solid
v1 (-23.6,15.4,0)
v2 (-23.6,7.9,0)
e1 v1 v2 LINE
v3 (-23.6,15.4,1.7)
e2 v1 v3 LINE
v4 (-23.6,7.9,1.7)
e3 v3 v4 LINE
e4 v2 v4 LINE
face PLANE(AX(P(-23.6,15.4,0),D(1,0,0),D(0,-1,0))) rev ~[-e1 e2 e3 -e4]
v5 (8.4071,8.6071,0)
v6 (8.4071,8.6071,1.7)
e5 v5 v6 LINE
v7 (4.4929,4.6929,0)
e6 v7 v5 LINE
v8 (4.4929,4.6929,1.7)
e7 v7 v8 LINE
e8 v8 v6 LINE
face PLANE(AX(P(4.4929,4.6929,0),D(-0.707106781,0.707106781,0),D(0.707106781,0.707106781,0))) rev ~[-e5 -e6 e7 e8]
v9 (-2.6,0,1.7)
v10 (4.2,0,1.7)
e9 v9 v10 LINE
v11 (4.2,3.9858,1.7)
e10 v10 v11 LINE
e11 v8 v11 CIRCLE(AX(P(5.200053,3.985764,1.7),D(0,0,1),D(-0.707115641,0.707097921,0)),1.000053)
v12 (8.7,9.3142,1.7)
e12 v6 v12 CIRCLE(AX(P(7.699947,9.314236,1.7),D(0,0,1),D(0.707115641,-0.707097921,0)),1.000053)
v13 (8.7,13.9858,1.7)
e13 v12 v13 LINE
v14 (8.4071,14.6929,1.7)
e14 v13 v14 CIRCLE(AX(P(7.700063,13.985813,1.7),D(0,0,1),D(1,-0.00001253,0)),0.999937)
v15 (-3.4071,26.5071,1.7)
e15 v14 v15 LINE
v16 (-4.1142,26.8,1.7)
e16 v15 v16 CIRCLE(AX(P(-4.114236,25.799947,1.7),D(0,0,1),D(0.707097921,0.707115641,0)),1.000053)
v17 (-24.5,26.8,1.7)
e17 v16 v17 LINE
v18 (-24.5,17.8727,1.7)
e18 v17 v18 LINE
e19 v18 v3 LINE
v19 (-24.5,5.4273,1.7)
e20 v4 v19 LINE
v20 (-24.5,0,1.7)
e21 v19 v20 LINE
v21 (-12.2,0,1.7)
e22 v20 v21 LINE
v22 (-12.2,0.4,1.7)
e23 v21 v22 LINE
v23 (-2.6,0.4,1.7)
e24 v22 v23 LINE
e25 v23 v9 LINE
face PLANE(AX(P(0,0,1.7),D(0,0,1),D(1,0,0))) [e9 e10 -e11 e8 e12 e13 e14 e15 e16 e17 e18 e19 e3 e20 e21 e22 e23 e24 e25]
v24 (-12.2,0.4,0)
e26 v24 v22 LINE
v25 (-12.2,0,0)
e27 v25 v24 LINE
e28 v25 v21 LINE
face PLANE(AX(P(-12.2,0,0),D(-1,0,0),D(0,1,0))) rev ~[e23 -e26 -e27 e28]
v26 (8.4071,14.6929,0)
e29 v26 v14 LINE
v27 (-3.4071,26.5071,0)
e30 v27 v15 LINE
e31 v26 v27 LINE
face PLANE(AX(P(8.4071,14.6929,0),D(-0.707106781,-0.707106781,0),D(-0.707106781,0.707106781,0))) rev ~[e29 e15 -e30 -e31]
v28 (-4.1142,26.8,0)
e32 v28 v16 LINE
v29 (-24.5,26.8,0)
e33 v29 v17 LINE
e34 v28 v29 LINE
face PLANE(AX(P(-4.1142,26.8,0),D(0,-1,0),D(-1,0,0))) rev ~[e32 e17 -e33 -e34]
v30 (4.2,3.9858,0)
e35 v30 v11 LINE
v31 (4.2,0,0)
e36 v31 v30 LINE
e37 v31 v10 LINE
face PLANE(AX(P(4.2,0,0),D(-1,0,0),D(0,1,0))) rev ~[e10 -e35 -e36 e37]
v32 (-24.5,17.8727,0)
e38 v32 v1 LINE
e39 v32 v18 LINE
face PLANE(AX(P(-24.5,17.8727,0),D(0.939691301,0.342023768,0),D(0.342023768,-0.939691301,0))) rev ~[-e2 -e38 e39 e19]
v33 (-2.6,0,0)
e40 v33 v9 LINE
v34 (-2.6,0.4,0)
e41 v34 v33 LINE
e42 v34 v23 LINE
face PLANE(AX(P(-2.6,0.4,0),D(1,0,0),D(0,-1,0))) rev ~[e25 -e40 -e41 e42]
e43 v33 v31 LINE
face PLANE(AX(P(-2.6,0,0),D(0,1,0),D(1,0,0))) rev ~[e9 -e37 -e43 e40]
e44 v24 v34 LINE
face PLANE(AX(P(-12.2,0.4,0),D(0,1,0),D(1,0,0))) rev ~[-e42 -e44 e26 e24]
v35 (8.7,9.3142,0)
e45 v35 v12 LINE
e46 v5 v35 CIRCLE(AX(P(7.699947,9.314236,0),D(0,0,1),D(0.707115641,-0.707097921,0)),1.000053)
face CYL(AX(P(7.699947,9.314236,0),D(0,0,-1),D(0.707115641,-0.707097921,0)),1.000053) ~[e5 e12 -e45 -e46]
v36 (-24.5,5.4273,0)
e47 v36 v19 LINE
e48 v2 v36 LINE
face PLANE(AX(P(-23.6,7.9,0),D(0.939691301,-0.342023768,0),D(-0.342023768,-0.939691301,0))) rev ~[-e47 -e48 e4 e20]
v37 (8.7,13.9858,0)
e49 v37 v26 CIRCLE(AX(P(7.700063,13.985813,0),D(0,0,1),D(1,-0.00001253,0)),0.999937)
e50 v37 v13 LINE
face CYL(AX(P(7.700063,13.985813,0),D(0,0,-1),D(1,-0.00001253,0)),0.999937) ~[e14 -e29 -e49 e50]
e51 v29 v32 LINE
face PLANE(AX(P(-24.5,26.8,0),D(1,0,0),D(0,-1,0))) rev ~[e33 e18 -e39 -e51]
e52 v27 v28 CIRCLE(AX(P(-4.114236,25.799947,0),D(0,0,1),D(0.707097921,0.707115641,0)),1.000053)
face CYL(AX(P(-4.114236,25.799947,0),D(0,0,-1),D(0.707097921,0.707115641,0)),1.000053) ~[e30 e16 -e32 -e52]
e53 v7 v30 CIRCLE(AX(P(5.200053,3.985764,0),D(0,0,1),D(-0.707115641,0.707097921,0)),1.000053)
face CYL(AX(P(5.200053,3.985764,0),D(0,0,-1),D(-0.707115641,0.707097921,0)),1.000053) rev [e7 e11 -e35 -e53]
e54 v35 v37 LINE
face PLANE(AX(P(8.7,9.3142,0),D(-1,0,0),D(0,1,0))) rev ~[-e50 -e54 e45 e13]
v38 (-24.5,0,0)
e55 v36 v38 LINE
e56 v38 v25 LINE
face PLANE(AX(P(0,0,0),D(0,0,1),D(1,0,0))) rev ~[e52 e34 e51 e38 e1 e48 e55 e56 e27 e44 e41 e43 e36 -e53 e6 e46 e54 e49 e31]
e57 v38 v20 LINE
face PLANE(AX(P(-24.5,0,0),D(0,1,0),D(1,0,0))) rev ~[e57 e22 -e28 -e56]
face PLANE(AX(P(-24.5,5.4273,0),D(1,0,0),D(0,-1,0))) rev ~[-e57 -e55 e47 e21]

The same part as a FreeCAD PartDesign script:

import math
import FreeCAD as App
import Part
import Sketcher
from FreeCAD import Vector
Q = App.Units.Quantity

doc = App.newDocument("Part")
body = doc.addObject("PartDesign::Body", "Body")

sketch1 = body.newObject("Sketcher::SketchObject", "Sketch")
sketch1.AttachmentSupport = (doc.getObject("XY_Plane"), [""])
sketch1.MapMode = "FlatFace"
sketch1.addGeometry(Part.LineSegment(Vector(-24.5, 5.43, 0), Vector(-24.5, 0, 0)), False)
sketch1.addGeometry(Part.LineSegment(Vector(-24.5, 0, 0), Vector(-12.2, 0, 0)), False)
sketch1.addGeometry(Part.LineSegment(Vector(-12.2, 0, 0), Vector(-12.2, 0.4, 0)), False)
sketch1.addGeometry(Part.LineSegment(Vector(-12.2, 0.4, 0), Vector(-2.6, 0.4, 0)), False)
sketch1.addGeometry(Part.LineSegment(Vector(-2.6, 0.4, 0), Vector(-2.6, 0, 0)), False)
sketch1.addGeometry(Part.LineSegment(Vector(-2.6, 0, 0), Vector(4.2, 0, 0)), False)
sketch1.addGeometry(Part.LineSegment(Vector(4.2, 0, 0), Vector(4.2, 3.99, 0)), False)
sketch1.addGeometry(Part.ArcOfCircle(Part.Circle(Vector(5.2, 3.99, 0), Vector(0, 0, 1), 1), math.radians(135), math.radians(180)), False)
sketch1.addGeometry(Part.LineSegment(Vector(4.49, 4.69, 0), Vector(8.41, 8.61, 0)), False)
sketch1.addGeometry(Part.ArcOfCircle(Part.Circle(Vector(7.7, 9.31, 0), Vector(0, 0, 1), 1), math.radians(-45), math.radians(0)), False)
sketch1.addGeometry(Part.LineSegment(Vector(8.7, 9.31, 0), Vector(8.7, 13.99, 0)), False)
sketch1.addGeometry(Part.ArcOfCircle(Part.Circle(Vector(7.7, 13.99, 0), Vector(0, 0, 1), 1), math.radians(0), math.radians(45)), False)
sketch1.addGeometry(Part.LineSegment(Vector(8.41, 14.69, 0), Vector(-3.41, 26.51, 0)), False)
sketch1.addGeometry(Part.ArcOfCircle(Part.Circle(Vector(-4.11, 25.8, 0), Vector(0, 0, 1), 1), math.radians(45), math.radians(90)), False)
sketch1.addGeometry(Part.LineSegment(Vector(-4.11, 26.8, 0), Vector(-24.5, 26.8, 0)), False)
sketch1.addGeometry(Part.LineSegment(Vector(-24.5, 26.8, 0), Vector(-24.5, 17.87, 0)), False)
sketch1.addGeometry(Part.LineSegment(Vector(-24.5, 17.87, 0), Vector(-23.6, 15.4, 0)), False)
sketch1.addGeometry(Part.LineSegment(Vector(-23.6, 15.4, 0), Vector(-23.6, 7.9, 0)), False)
sketch1.addGeometry(Part.LineSegment(Vector(-23.6, 7.9, 0), Vector(-24.5, 5.43, 0)), False)
sketch1.addConstraint(Sketcher.Constraint("Coincident", 0, 2, 1, 1))
sketch1.addConstraint(Sketcher.Constraint("Coincident", 1, 2, 2, 1))
sketch1.addConstraint(Sketcher.Constraint("Coincident", 2, 2, 3, 1))
sketch1.addConstraint(Sketcher.Constraint("Coincident", 3, 2, 4, 1))
sketch1.addConstraint(Sketcher.Constraint("Coincident", 4, 2, 5, 1))
sketch1.addConstraint(Sketcher.Constraint("Coincident", 5, 2, 6, 1))
sketch1.addConstraint(Sketcher.Constraint("Tangent", 6, 2, 7, 2))
sketch1.addConstraint(Sketcher.Constraint("Tangent", 7, 1, 8, 1))
sketch1.addConstraint(Sketcher.Constraint("Tangent", 8, 2, 9, 1))
sketch1.addConstraint(Sketcher.Constraint("Tangent", 9, 2, 10, 1))
sketch1.addConstraint(Sketcher.Constraint("Tangent", 10, 2, 11, 1))
sketch1.addConstraint(Sketcher.Constraint("Tangent", 11, 2, 12, 1))
sketch1.addConstraint(Sketcher.Constraint("Tangent", 12, 2, 13, 1))
sketch1.addConstraint(Sketcher.Constraint("Tangent", 13, 2, 14, 1))
sketch1.addConstraint(Sketcher.Constraint("Coincident", 14, 2, 15, 1))
sketch1.addConstraint(Sketcher.Constraint("Coincident", 15, 2, 16, 1))
sketch1.addConstraint(Sketcher.Constraint("Coincident", 16, 2, 17, 1))
sketch1.addConstraint(Sketcher.Constraint("Coincident", 17, 2, 18, 1))
sketch1.addConstraint(Sketcher.Constraint("Coincident", 18, 2, 0, 1))
sketch1.addConstraint(Sketcher.Constraint("Vertical", 0))
sketch1.addConstraint(Sketcher.Constraint("Horizontal", 1))
sketch1.addConstraint(Sketcher.Constraint("Vertical", 2))
sketch1.addConstraint(Sketcher.Constraint("Horizontal", 3))
sketch1.addConstraint(Sketcher.Constraint("Vertical", 4))
sketch1.addConstraint(Sketcher.Constraint("Horizontal", 5))
sketch1.addConstraint(Sketcher.Constraint("Vertical", 6))
sketch1.addConstraint(Sketcher.Constraint("Vertical", 10))
sketch1.addConstraint(Sketcher.Constraint("Horizontal", 14))
sketch1.addConstraint(Sketcher.Constraint("Vertical", 15))
sketch1.addConstraint(Sketcher.Constraint("Vertical", 17))
sketch1.addConstraint(Sketcher.Constraint("Equal", 7, 9))
sketch1.addConstraint(Sketcher.Constraint("Equal", 9, 11))
sketch1.addConstraint(Sketcher.Constraint("Equal", 11, 13))
sketch1.addConstraint(Sketcher.Constraint("PointOnObject", 0, 2, -1))
sketch1.addConstraint(Sketcher.Constraint("PointOnObject", 4, 2, -1))
sketch1.addConstraint(Sketcher.Constraint("Perpendicular", 8, 12))
sketch1.addConstraint(Sketcher.Constraint("Vertical", 8, 2, 11, 2))
sketch1.addConstraint(Sketcher.Constraint("Vertical", 0, 2, 14, 2))
sketch1.addConstraint(Sketcher.Constraint("Equal", 16, 18))
sketch1.addConstraint(Sketcher.Constraint("Radius", 7, Q("1 mm")))
sketch1.addConstraint(Sketcher.Constraint("Angle", 16, Q("-69.9998 deg")))
sketch1.addConstraint(Sketcher.Constraint("DistanceX", 1, 1, 1, 2, Q("12.3 mm")))
sketch1.addConstraint(Sketcher.Constraint("DistanceX", 3, 1, 3, 2, Q("9.6 mm")))
sketch1.addConstraint(Sketcher.Constraint("DistanceX", 5, 1, 5, 2, Q("6.8 mm")))
sketch1.addConstraint(Sketcher.Constraint("DistanceY", 2, 1, 2, 2, Q("0.4 mm")))
sketch1.addConstraint(Sketcher.Constraint("DistanceY", 17, 2, 17, 1, Q("7.5 mm")))
sketch1.addConstraint(Sketcher.Constraint("DistanceY", 7, 3, 11, 3, Q("10 mm")))
sketch1.addConstraint(Sketcher.Constraint("DistanceY", 2, 2, 16, 2, Q("15 mm")))
sketch1.addConstraint(Sketcher.Constraint("DistanceX", -1, 1, 7, 3, Q("5.2 mm")))
sketch1.addConstraint(Sketcher.Constraint("DistanceX", -1, 1, 9, 3, Q("7.7 mm")))
sketch1.addConstraint(Sketcher.Constraint("DistanceY", -1, 1, 13, 3, Q("25.8 mm")))
sketch1.addConstraint(Sketcher.Constraint("DistanceX", 16, 2, -1, 1, Q("23.6 mm")))
sketch1.addConstraint(Sketcher.Constraint("DistanceX", 14, 2, 14, 1, Q("20.3858 mm")))
pad1 = body.newObject("PartDesign::Pad", "Pad")
pad1.Profile = sketch1
pad1.Length = 1.7

doc.recompute()
